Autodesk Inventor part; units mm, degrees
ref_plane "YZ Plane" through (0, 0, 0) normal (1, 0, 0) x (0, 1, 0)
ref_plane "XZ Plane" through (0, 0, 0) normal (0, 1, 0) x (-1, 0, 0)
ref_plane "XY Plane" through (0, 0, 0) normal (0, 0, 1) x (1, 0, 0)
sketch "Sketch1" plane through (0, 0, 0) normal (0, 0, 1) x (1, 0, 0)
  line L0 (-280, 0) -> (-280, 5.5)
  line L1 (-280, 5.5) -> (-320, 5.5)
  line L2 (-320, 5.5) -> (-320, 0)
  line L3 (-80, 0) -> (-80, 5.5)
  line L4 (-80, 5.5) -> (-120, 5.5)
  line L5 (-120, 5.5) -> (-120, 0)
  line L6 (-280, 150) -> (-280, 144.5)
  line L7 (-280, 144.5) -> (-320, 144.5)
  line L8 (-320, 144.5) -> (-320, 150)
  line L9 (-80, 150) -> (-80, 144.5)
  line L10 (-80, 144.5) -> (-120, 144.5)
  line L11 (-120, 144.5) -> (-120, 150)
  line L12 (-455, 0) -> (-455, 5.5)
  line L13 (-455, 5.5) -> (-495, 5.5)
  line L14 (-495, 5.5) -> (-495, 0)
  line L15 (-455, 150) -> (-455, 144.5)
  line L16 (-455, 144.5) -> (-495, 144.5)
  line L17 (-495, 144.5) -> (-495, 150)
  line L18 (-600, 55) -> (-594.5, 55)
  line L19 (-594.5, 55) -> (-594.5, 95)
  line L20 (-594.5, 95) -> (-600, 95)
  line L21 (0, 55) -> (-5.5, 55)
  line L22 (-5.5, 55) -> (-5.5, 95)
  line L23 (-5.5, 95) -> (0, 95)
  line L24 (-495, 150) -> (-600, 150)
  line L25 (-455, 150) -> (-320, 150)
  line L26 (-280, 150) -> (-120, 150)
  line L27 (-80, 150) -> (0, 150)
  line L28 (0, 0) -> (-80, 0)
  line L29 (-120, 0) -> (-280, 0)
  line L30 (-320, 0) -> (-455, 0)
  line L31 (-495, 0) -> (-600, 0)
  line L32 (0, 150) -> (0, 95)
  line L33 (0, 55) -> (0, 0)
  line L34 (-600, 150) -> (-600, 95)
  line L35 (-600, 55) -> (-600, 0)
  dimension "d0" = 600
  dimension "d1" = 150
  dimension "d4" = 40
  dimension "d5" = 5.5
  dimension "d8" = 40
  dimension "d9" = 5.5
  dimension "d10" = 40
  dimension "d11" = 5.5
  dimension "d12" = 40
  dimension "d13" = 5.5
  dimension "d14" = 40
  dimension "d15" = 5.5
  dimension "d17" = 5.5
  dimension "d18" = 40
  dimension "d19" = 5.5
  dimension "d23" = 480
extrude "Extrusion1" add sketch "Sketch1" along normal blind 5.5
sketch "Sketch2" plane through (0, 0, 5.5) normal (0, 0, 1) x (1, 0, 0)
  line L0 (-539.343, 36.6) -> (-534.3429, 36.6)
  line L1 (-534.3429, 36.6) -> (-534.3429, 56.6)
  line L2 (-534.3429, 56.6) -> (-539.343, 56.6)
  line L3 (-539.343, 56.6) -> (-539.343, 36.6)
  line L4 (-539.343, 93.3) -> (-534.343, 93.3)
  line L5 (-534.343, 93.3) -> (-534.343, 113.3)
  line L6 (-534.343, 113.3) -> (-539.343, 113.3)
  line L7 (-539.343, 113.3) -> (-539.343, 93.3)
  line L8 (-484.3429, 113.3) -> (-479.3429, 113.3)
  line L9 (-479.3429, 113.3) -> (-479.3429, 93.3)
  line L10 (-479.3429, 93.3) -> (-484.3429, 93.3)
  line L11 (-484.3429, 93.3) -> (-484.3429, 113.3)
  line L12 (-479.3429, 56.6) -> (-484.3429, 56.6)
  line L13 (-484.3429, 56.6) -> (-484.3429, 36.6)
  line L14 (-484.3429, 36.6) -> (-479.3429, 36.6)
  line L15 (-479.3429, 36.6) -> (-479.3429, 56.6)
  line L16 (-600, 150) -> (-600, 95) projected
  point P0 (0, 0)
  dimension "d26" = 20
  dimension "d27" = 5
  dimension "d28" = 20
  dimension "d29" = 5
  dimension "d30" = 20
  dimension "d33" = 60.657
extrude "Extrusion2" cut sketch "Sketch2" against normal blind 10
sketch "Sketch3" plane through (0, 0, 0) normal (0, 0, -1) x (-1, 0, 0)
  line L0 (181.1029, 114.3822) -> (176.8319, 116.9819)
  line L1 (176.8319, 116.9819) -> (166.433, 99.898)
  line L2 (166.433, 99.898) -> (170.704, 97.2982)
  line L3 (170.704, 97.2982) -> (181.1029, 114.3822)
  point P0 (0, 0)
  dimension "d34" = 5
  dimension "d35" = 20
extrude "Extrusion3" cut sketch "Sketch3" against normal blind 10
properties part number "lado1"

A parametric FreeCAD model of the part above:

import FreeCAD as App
import Part
import Sketcher
Q = App.Units.Quantity

doc = App.newDocument("Part")
body = doc.addObject("PartDesign::Body", "Body")

# Sketch on XY plane
sketch1 = doc.addObject("Sketcher::SketchObject", "Sketch")
body.addObject(sketch1)
sketch1.AttachmentSupport = (doc.XY_Plane, [""])
sketch1.MapMode = "FlatFace"
sketch1.addGeometry([
    Part.LineSegment(App.Vector(-280, 5.5, 0), App.Vector(-280, 0, 0)),  # 0
    Part.LineSegment(App.Vector(-280, 0, 0), App.Vector(-120, 0, 0)),  # 1
    Part.LineSegment(App.Vector(-120, 0, 0), App.Vector(-120, 5.5, 0)),  # 2
    Part.LineSegment(App.Vector(-120, 5.5, 0), App.Vector(-80, 5.5, 0)),  # 3
    Part.LineSegment(App.Vector(-80, 5.5, 0), App.Vector(-80, 0, 0)),  # 4
    Part.LineSegment(App.Vector(-80, 0, 0), App.Vector(0, 0, 0)),  # 5
    Part.LineSegment(App.Vector(0, 0, 0), App.Vector(0, 55, 0)),  # 6
    Part.LineSegment(App.Vector(0, 55, 0), App.Vector(-5.5, 55, 0)),  # 7
    Part.LineSegment(App.Vector(-5.5, 55, 0), App.Vector(-5.5, 95, 0)),  # 8
    Part.LineSegment(App.Vector(-5.5, 95, 0), App.Vector(0, 95, 0)),  # 9
    Part.LineSegment(App.Vector(0, 95, 0), App.Vector(0, 150, 0)),  # 10
    Part.LineSegment(App.Vector(0, 150, 0), App.Vector(-80, 150, 0)),  # 11
    Part.LineSegment(App.Vector(-80, 150, 0), App.Vector(-80, 144.5, 0)),  # 12
    Part.LineSegment(App.Vector(-80, 144.5, 0), App.Vector(-120, 144.5, 0)),  # 13
    Part.LineSegment(App.Vector(-120, 144.5, 0), App.Vector(-120, 150, 0)),  # 14
    Part.LineSegment(App.Vector(-120, 150, 0), App.Vector(-280, 150, 0)),  # 15
    Part.LineSegment(App.Vector(-280, 150, 0), App.Vector(-280, 144.5, 0)),  # 16
    Part.LineSegment(App.Vector(-280, 144.5, 0), App.Vector(-320, 144.5, 0)),  # 17
    Part.LineSegment(App.Vector(-320, 144.5, 0), App.Vector(-320, 150, 0)),  # 18
    Part.LineSegment(App.Vector(-320, 150, 0), App.Vector(-455, 150, 0)),  # 19
    Part.LineSegment(App.Vector(-455, 150, 0), App.Vector(-455, 144.5, 0)),  # 20
    Part.LineSegment(App.Vector(-455, 144.5, 0), App.Vector(-495, 144.5, 0)),  # 21
    Part.LineSegment(App.Vector(-495, 144.5, 0), App.Vector(-495, 150, 0)),  # 22
    Part.LineSegment(App.Vector(-495, 150, 0), App.Vector(-600, 150, 0)),  # 23
    Part.LineSegment(App.Vector(-600, 150, 0), App.Vector(-600, 95, 0)),  # 24
    Part.LineSegment(App.Vector(-600, 95, 0), App.Vector(-594.5, 95, 0)),  # 25
    Part.LineSegment(App.Vector(-594.5, 95, 0), App.Vector(-594.5, 55, 0)),  # 26
    Part.LineSegment(App.Vector(-594.5, 55, 0), App.Vector(-600, 55, 0)),  # 27
    Part.LineSegment(App.Vector(-600, 55, 0), App.Vector(-600, 0, 0)),  # 28
    Part.LineSegment(App.Vector(-600, 0, 0), App.Vector(-495, 0, 0)),  # 29
    Part.LineSegment(App.Vector(-495, 0, 0), App.Vector(-495, 5.5, 0)),  # 30
    Part.LineSegment(App.Vector(-495, 5.5, 0), App.Vector(-455, 5.5, 0)),  # 31
    Part.LineSegment(App.Vector(-455, 5.5, 0), App.Vector(-455, 0, 0)),  # 32
    Part.LineSegment(App.Vector(-455, 0, 0), App.Vector(-320, 0, 0)),  # 33
    Part.LineSegment(App.Vector(-320, 0, 0), App.Vector(-320, 5.5, 0)),  # 34
    Part.LineSegment(App.Vector(-320, 5.5, 0), App.Vector(-280, 5.5, 0)),  # 35
], False)
sketch1.addConstraint([
    Sketcher.Constraint("Coincident", 0, 2, 1, 1),
    Sketcher.Constraint("Coincident", 1, 2, 2, 1),
    Sketcher.Constraint("Coincident", 2, 2, 3, 1),
    Sketcher.Constraint("Coincident", 3, 2, 4, 1),
    Sketcher.Constraint("Coincident", 4, 2, 5, 1),
    Sketcher.Constraint("Coincident", 5, 2, 6, 1),
    Sketcher.Constraint("Coincident", 6, 2, 7, 1),
    Sketcher.Constraint("Coincident", 7, 2, 8, 1),
    Sketcher.Constraint("Coincident", 8, 2, 9, 1),
    Sketcher.Constraint("Coincident", 9, 2, 10, 1),
    Sketcher.Constraint("Coincident", 10, 2, 11, 1),
    Sketcher.Constraint("Coincident", 11, 2, 12, 1),
    Sketcher.Constraint("Coincident", 12, 2, 13, 1),
    Sketcher.Constraint("Coincident", 13, 2, 14, 1),
    Sketcher.Constraint("Coincident", 14, 2, 15, 1),
    Sketcher.Constraint("Coincident", 15, 2, 16, 1),
    Sketcher.Constraint("Coincident", 16, 2, 17, 1),
    Sketcher.Constraint("Coincident", 17, 2, 18, 1),
    Sketcher.Constraint("Coincident", 18, 2, 19, 1),
    Sketcher.Constraint("Coincident", 19, 2, 20, 1),
    Sketcher.Constraint("Coincident", 20, 2, 21, 1),
    Sketcher.Constraint("Coincident", 21, 2, 22, 1),
    Sketcher.Constraint("Coincident", 22, 2, 23, 1),
    Sketcher.Constraint("Coincident", 23, 2, 24, 1),
    Sketcher.Constraint("Coincident", 24, 2, 25, 1),
    Sketcher.Constraint("Coincident", 25, 2, 26, 1),
    Sketcher.Constraint("Coincident", 26, 2, 27, 1),
    Sketcher.Constraint("Coincident", 27, 2, 28, 1),
    Sketcher.Constraint("Coincident", 28, 2, 29, 1),
    Sketcher.Constraint("Coincident", 29, 2, 30, 1),
    Sketcher.Constraint("Coincident", 30, 2, 31, 1),
    Sketcher.Constraint("Coincident", 31, 2, 32, 1),
    Sketcher.Constraint("Coincident", 32, 2, 33, 1),
    Sketcher.Constraint("Coincident", 33, 2, 34, 1),
    Sketcher.Constraint("Coincident", 34, 2, 35, 1),
    Sketcher.Constraint("Coincident", 35, 2, 0, 1),
    Sketcher.Constraint("Vertical", 0),
    Sketcher.Constraint("Horizontal", 1),
    Sketcher.Constraint("Vertical", 2),
    Sketcher.Constraint("Horizontal", 3),
    Sketcher.Constraint("Vertical", 4),
    Sketcher.Constraint("Horizontal", 5),
    Sketcher.Constraint("Vertical", 6),
    Sketcher.Constraint("Horizontal", 7),
    Sketcher.Constraint("Vertical", 8),
    Sketcher.Constraint("Horizontal", 9),
    Sketcher.Constraint("Vertical", 10),
    Sketcher.Constraint("Horizontal", 11),
    Sketcher.Constraint("Vertical", 12),
    Sketcher.Constraint("Horizontal", 13),
    Sketcher.Constraint("Vertical", 14),
    Sketcher.Constraint("Horizontal", 15),
    Sketcher.Constraint("Vertical", 16),
    Sketcher.Constraint("Horizontal", 17),
    Sketcher.Constraint("Vertical", 18),
    Sketcher.Constraint("Horizontal", 19),
    Sketcher.Constraint("Vertical", 20),
    Sketcher.Constraint("Horizontal", 21),
    Sketcher.Constraint("Vertical", 22),
    Sketcher.Constraint("Horizontal", 23),
    Sketcher.Constraint("Vertical", 24),
    Sketcher.Constraint("Horizontal", 25),
    Sketcher.Constraint("Vertical", 26),
    Sketcher.Constraint("Horizontal", 27),
    Sketcher.Constraint("Vertical", 28),
    Sketcher.Constraint("Horizontal", 29),
    Sketcher.Constraint("Vertical", 30),
    Sketcher.Constraint("Horizontal", 31),
    Sketcher.Constraint("Vertical", 32),
    Sketcher.Constraint("Horizontal", 33),
    Sketcher.Constraint("Vertical", 34),
    Sketcher.Constraint("Horizontal", 35),
    Sketcher.Constraint("Coincident", 5, 2, -1, 1),
    Sketcher.Constraint("PointOnObject", 0, 2, -1),
    Sketcher.Constraint("PointOnObject", 9, 2, -2),
    Sketcher.Constraint("PointOnObject", 28, 2, -1),
    Sketcher.Constraint("PointOnObject", 32, 2, -1),
    Sketcher.Constraint("Horizontal", 11, 2, 14, 2),
    Sketcher.Constraint("Horizontal", 13, 2, 16, 2),
    Sketcher.Constraint("Horizontal", 15, 2, 18, 2),
    Sketcher.Constraint("Horizontal", 17, 2, 20, 2),
    Sketcher.Constraint("Horizontal", 19, 2, 22, 2),
    Sketcher.Constraint("Horizontal", 9, 2, 24, 2),
    Sketcher.Constraint("Horizontal", 7, 2, 26, 2),
    Sketcher.Constraint("Horizontal", 3, 2, 30, 2),
    Sketcher.Constraint("Horizontal", 31, 2, 34, 2),
    Sketcher.Constraint("Vertical", 4, 2, 11, 2),
    Sketcher.Constraint("Vertical", 2, 2, 13, 2),
    Sketcher.Constraint("Vertical", 0, 2, 15, 2),
    Sketcher.Constraint("Vertical", 24, 2, 27, 2),
    Sketcher.Constraint("Vertical", 22, 2, 29, 2),
    Sketcher.Constraint("Vertical", 20, 2, 31, 2),
    Sketcher.Constraint("Vertical", 18, 2, 33, 2),
    Sketcher.Constraint("Equal", 13, 17),
    Sketcher.Constraint("Equal", 17, 21),
    Sketcher.Constraint("Equal", 9, 25),
    Sketcher.Constraint("Equal", 27, 0),
    Sketcher.Constraint("Equal", 35, 8),
    Sketcher.Constraint("Equal", 6, 10),
    Sketcher.Constraint("Equal", 4, 12),
    Sketcher.Constraint("DistanceX", 3, 1, 3, 2, Q("40 mm")),
    Sketcher.Constraint("DistanceX", 7, 2, 7, 1, Q("5.5 mm")),
    Sketcher.Constraint("DistanceY", -1, 1, 10, 2, Q("150 mm")),
    Sketcher.Constraint("DistanceX", 23, 2, -1, 1, Q("600 mm")),
    Sketcher.Constraint("DistanceX", 1, 1, 1, 2, Q("160 mm")),
    Sketcher.Constraint("DistanceX", 5, 1, 5, 2, Q("80 mm")),
    Sketcher.Constraint("DistanceX", 19, 2, 19, 1, Q("135 mm")),
])
pad1 = doc.addObject("PartDesign::Pad", "Pad")
body.addObject(pad1)
pad1.Profile = sketch1
pad1.Length = 5.5

# Sketch on XY plane
sketch2 = doc.addObject("Sketcher::SketchObject", "Sketch001")
body.addObject(sketch2)
sketch2.AttachmentSupport = (doc.XY_Plane, [""])
sketch2.MapMode = "FlatFace"
sketch2.AttachmentOffset = App.Placement(App.Vector(0, 0, 5.5), App.Rotation())
sketch2.addGeometry([
    Part.LineSegment(App.Vector(-539.343, 56.6, 0), App.Vector(-539.343, 36.6, 0)),  # 0
    Part.LineSegment(App.Vector(-539.343, 36.6, 0), App.Vector(-534.3429, 36.6, 0)),  # 1
    Part.LineSegment(App.Vector(-534.3429, 36.6, 0), App.Vector(-534.3429, 56.6, 0)),  # 2
    Part.LineSegment(App.Vector(-534.3429, 56.6, 0), App.Vector(-539.343, 56.6, 0)),  # 3
    Part.LineSegment(App.Vector(-539.343, 113.3, 0), App.Vector(-539.343, 93.3, 0)),  # 4
    Part.LineSegment(App.Vector(-539.343, 93.3, 0), App.Vector(-534.343, 93.3, 0)),  # 5
    Part.LineSegment(App.Vector(-534.343, 93.3, 0), App.Vector(-534.343, 113.3, 0)),  # 6
    Part.LineSegment(App.Vector(-534.343, 113.3, 0), App.Vector(-539.343, 113.3, 0)),  # 7
    Part.LineSegment(App.Vector(-479.3429, 113.3, 0), App.Vector(-484.3429, 113.3, 0)),  # 8
    Part.LineSegment(App.Vector(-484.3429, 113.3, 0), App.Vector(-484.3429, 93.3, 0)),  # 9
    Part.LineSegment(App.Vector(-484.3429, 93.3, 0), App.Vector(-479.3429, 93.3, 0)),  # 10
    Part.LineSegment(App.Vector(-479.3429, 93.3, 0), App.Vector(-479.3429, 113.3, 0)),  # 11
    Part.LineSegment(App.Vector(-479.3429, 36.6, 0), App.Vector(-479.3429, 56.6, 0)),  # 12
    Part.LineSegment(App.Vector(-479.3429, 56.6, 0), App.Vector(-484.3429, 56.6, 0)),  # 13
    Part.LineSegment(App.Vector(-484.3429, 56.6, 0), App.Vector(-484.3429, 36.6, 0)),  # 14
    Part.LineSegment(App.Vector(-484.3429, 36.6, 0), App.Vector(-479.3429, 36.6, 0)),  # 15
], False)
sketch2.addConstraint([
    Sketcher.Constraint("Coincident", 0, 2, 1, 1),
    Sketcher.Constraint("Coincident", 1, 2, 2, 1),
    Sketcher.Constraint("Coincident", 2, 2, 3, 1),
    Sketcher.Constraint("Coincident", 3, 2, 0, 1),
    Sketcher.Constraint("Coincident", 4, 2, 5, 1),
    Sketcher.Constraint("Coincident", 5, 2, 6, 1),
    Sketcher.Constraint("Coincident", 6, 2, 7, 1),
    Sketcher.Constraint("Coincident", 7, 2, 4, 1),
    Sketcher.Constraint("Coincident", 8, 2, 9, 1),
    Sketcher.Constraint("Coincident", 9, 2, 10, 1),
    Sketcher.Constraint("Coincident", 10, 2, 11, 1),
    Sketcher.Constraint("Coincident", 11, 2, 8, 1),
    Sketcher.Constraint("Coincident", 12, 2, 13, 1),
    Sketcher.Constraint("Coincident", 13, 2, 14, 1),
    Sketcher.Constraint("Coincident", 14, 2, 15, 1),
    Sketcher.Constraint("Coincident", 15, 2, 12, 1),
    Sketcher.Constraint("Vertical", 0),
    Sketcher.Constraint("Horizontal", 1),
    Sketcher.Constraint("Vertical", 2),
    Sketcher.Constraint("Horizontal", 3),
    Sketcher.Constraint("Vertical", 4),
    Sketcher.Constraint("Horizontal", 5),
    Sketcher.Constraint("Vertical", 6),
    Sketcher.Constraint("Horizontal", 7),
    Sketcher.Constraint("Horizontal", 8),
    Sketcher.Constraint("Vertical", 9),
    Sketcher.Constraint("Horizontal", 10),
    Sketcher.Constraint("Vertical", 11),
    Sketcher.Constraint("Vertical", 12),
    Sketcher.Constraint("Horizontal", 13),
    Sketcher.Constraint("Vertical", 14),
    Sketcher.Constraint("Horizontal", 15),
    Sketcher.Constraint("Horizontal", 7, 2, 8, 2),
    Sketcher.Constraint("Horizontal", 5, 2, 9, 2),
    Sketcher.Constraint("Horizontal", 3, 2, 12, 2),
    Sketcher.Constraint("Horizontal", 1, 2, 14, 2),
    Sketcher.Constraint("Vertical", 3, 2, 4, 2),
    Sketcher.Constraint("Vertical", 2, 2, 5, 2),
    Sketcher.Constraint("Vertical", 11, 2, 12, 2),
    Sketcher.Constraint("Vertical", 9, 2, 13, 2),
    Sketcher.Constraint("Equal", 7, 8),
    Sketcher.Constraint("Equal", 2, 4),
    Sketcher.Constraint("DistanceX", 1, 1, 1, 2, Q("5 mm")),
    Sketcher.Constraint("DistanceY", 0, 2, 0, 1, Q("20 mm")),
    Sketcher.Constraint("DistanceX", 6, 2, 8, 2, Q("50 mm")),
    Sketcher.Constraint("DistanceY", -1, 1, 0, 2, Q("36.6 mm")),
    Sketcher.Constraint("DistanceY", -1, 1, 4, 2, Q("93.3 mm")),
    Sketcher.Constraint("DistanceX", 0, 2, -1, 1, Q("539.343 mm")),
])
pocket1 = doc.addObject("PartDesign::Pocket", "Pocket")
body.addObject(pocket1)
pocket1.Profile = sketch2
pocket1.Length = 10

# Sketch on XY plane
sketch3 = doc.addObject("Sketcher::SketchObject", "Sketch002")
body.addObject(sketch3)
sketch3.AttachmentSupport = (doc.XY_Plane, [""])
sketch3.MapMode = "FlatFace"
sketch3.addGeometry([
    Part.LineSegment(App.Vector(-170.704, 97.2982, 0), App.Vector(-181.1029, 114.3822, 0)),
    Part.LineSegment(App.Vector(-181.1029, 114.3822, 0), App.Vector(-176.8319, 116.9819, 0)),
    Part.LineSegment(App.Vector(-176.8319, 116.9819, 0), App.Vector(-166.433, 99.898, 0)),
    Part.LineSegment(App.Vector(-166.433, 99.898, 0), App.Vector(-170.704, 97.2982, 0)),
], False)
sketch3.addConstraint([
    Sketcher.Constraint("Coincident", 0, 2, 1, 1),
    Sketcher.Constraint("Coincident", 1, 2, 2, 1),
    Sketcher.Constraint("Coincident", 2, 2, 3, 1),
    Sketcher.Constraint("Coincident", 3, 2, 0, 1),
    Sketcher.Constraint("Perpendicular", 0, 1),
    Sketcher.Constraint("Perpendicular", 1, 2),
    Sketcher.Constraint("Perpendicular", 2, 3),
    Sketcher.Constraint("Distance", 0, Q("20 mm")),
    Sketcher.Constraint("Distance", 1, Q("5 mm")),
    Sketcher.Constraint("Angle", 3, Q("-148.6707 deg")),
    Sketcher.Constraint("DistanceX", 0, 2, -1, 1, Q("181.103 mm")),
    Sketcher.Constraint("DistanceY", -1, 1, 1, 2, Q("116.982 mm")),
])
pocket2 = doc.addObject("PartDesign::Pocket", "Pocket001")
body.addObject(pocket2)
pocket2.Profile = sketch3
pocket2.Length = 10
pocket2.Reversed = True

doc.recompute()
